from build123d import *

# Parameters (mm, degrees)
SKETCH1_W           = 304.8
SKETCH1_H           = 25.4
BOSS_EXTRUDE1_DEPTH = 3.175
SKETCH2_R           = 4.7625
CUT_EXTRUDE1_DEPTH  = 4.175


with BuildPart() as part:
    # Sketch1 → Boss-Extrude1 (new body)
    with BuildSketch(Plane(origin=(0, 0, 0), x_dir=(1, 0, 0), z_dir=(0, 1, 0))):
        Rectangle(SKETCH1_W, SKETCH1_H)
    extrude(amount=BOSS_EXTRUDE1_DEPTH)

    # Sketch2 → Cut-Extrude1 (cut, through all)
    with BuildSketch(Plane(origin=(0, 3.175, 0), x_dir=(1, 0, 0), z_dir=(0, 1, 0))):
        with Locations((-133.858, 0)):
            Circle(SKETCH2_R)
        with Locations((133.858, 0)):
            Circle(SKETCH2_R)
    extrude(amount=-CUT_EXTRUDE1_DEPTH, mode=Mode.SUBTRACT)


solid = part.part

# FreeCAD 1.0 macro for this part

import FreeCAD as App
import Part
import Sketcher
Q = App.Units.Quantity


def add_polygon(sketch, points):
    """Adds a closed chain of lines whose ends are joined by coincident constraints."""
    first, n = sketch.GeometryCount, len(points)
    for a, b in zip(points, points[1:] + points[:1]):
        sketch.addGeometry(Part.LineSegment(App.Vector(*a, 0), App.Vector(*b, 0)), False)
    for i in range(n):
        sketch.addConstraint(Sketcher.Constraint("Coincident", first + i, 2, first + (i + 1) % n, 1))

doc = App.newDocument("Part")
params = doc.addObject("Spreadsheet::Sheet", "Params")
for row, (alias, value) in enumerate([
    ("sketch1_width", "12 in"),
    ("sketch1_height", "1 in"),
    ("pad1_length", "0.125 in"),
    ("sketch2_diameter", "0.375 in"),
], start=1):
    params.set(f"A{row}", alias)
    params.set(f"B{row}", "=" + value)
    params.setAlias(f"B{row}", alias)

body = doc.addObject("PartDesign::Body", "Body")

# Sketch on XZ plane
sketch1 = body.newObject("Sketcher::SketchObject", "Sketch")
sketch1.AttachmentSupport = (doc.getObject("XZ_Plane"), [""])
sketch1.MapMode = "FlatFace"
add_polygon(sketch1, [(-152.4, -12.7), (-152.4, 12.7), (152.4, 12.7), (152.4, -12.7)])  # lines 0-3
sketch1.addConstraint([
    Sketcher.Constraint("Vertical", 0),
    Sketcher.Constraint("Horizontal", 1),
    Sketcher.Constraint("Vertical", 2),
    Sketcher.Constraint("Horizontal", 3),
    Sketcher.Constraint("Symmetric", 0, 2, 2, 2, -1, 1),
    Sketcher.Constraint("DistanceX", 1, 1, 1, 2, Q("12 in")),
    Sketcher.Constraint("DistanceY", 0, 1, 0, 2, Q("1 in")),
])
sketch1.setExpression("Constraints[9]", "Params.sketch1_width")
sketch1.setExpression("Constraints[10]", "Params.sketch1_height")
pad1 = body.newObject("PartDesign::Pad", "Pad")
pad1.Profile = sketch1
pad1.setExpression("Length", "Params.pad1_length")
pad1.Reversed = True

# Sketch on XZ plane
sketch2 = body.newObject("Sketcher::SketchObject", "Sketch001")
sketch2.AttachmentSupport = (doc.getObject("XZ_Plane"), [""])
sketch2.MapMode = "FlatFace"
sketch2.AttachmentOffset = App.Placement(App.Vector(0, 0, -0.125 * 25.4), App.Rotation())
sketch2.addGeometry([
    Part.Circle(App.Vector(-133.858, 0, 0), App.Vector(0, 0, 1), 4.7625),
    Part.Circle(App.Vector(133.858, 0, 0), App.Vector(0, 0, 1), 4.7625),
], False)
sketch2.addConstraint([
    Sketcher.Constraint("Equal", 0, 1),
    Sketcher.Constraint("Symmetric", 0, 3, 1, 3, -1, 1),
    Sketcher.Constraint("PointOnObject", 0, 3, -1),
    Sketcher.Constraint("Diameter", 0, Q("0.375 in")),
    Sketcher.Constraint("DistanceX", 0, 3, -1, 1, Q("5.27 in")),
])
sketch2.setExpression("Constraints[3]", "Params.sketch2_diameter")
pocket1 = body.newObject("PartDesign::Pocket", "Pocket")
pocket1.Profile = sketch2
pocket1.Type = "ThroughAll"
pocket1.Reversed = True

doc.recompute()
